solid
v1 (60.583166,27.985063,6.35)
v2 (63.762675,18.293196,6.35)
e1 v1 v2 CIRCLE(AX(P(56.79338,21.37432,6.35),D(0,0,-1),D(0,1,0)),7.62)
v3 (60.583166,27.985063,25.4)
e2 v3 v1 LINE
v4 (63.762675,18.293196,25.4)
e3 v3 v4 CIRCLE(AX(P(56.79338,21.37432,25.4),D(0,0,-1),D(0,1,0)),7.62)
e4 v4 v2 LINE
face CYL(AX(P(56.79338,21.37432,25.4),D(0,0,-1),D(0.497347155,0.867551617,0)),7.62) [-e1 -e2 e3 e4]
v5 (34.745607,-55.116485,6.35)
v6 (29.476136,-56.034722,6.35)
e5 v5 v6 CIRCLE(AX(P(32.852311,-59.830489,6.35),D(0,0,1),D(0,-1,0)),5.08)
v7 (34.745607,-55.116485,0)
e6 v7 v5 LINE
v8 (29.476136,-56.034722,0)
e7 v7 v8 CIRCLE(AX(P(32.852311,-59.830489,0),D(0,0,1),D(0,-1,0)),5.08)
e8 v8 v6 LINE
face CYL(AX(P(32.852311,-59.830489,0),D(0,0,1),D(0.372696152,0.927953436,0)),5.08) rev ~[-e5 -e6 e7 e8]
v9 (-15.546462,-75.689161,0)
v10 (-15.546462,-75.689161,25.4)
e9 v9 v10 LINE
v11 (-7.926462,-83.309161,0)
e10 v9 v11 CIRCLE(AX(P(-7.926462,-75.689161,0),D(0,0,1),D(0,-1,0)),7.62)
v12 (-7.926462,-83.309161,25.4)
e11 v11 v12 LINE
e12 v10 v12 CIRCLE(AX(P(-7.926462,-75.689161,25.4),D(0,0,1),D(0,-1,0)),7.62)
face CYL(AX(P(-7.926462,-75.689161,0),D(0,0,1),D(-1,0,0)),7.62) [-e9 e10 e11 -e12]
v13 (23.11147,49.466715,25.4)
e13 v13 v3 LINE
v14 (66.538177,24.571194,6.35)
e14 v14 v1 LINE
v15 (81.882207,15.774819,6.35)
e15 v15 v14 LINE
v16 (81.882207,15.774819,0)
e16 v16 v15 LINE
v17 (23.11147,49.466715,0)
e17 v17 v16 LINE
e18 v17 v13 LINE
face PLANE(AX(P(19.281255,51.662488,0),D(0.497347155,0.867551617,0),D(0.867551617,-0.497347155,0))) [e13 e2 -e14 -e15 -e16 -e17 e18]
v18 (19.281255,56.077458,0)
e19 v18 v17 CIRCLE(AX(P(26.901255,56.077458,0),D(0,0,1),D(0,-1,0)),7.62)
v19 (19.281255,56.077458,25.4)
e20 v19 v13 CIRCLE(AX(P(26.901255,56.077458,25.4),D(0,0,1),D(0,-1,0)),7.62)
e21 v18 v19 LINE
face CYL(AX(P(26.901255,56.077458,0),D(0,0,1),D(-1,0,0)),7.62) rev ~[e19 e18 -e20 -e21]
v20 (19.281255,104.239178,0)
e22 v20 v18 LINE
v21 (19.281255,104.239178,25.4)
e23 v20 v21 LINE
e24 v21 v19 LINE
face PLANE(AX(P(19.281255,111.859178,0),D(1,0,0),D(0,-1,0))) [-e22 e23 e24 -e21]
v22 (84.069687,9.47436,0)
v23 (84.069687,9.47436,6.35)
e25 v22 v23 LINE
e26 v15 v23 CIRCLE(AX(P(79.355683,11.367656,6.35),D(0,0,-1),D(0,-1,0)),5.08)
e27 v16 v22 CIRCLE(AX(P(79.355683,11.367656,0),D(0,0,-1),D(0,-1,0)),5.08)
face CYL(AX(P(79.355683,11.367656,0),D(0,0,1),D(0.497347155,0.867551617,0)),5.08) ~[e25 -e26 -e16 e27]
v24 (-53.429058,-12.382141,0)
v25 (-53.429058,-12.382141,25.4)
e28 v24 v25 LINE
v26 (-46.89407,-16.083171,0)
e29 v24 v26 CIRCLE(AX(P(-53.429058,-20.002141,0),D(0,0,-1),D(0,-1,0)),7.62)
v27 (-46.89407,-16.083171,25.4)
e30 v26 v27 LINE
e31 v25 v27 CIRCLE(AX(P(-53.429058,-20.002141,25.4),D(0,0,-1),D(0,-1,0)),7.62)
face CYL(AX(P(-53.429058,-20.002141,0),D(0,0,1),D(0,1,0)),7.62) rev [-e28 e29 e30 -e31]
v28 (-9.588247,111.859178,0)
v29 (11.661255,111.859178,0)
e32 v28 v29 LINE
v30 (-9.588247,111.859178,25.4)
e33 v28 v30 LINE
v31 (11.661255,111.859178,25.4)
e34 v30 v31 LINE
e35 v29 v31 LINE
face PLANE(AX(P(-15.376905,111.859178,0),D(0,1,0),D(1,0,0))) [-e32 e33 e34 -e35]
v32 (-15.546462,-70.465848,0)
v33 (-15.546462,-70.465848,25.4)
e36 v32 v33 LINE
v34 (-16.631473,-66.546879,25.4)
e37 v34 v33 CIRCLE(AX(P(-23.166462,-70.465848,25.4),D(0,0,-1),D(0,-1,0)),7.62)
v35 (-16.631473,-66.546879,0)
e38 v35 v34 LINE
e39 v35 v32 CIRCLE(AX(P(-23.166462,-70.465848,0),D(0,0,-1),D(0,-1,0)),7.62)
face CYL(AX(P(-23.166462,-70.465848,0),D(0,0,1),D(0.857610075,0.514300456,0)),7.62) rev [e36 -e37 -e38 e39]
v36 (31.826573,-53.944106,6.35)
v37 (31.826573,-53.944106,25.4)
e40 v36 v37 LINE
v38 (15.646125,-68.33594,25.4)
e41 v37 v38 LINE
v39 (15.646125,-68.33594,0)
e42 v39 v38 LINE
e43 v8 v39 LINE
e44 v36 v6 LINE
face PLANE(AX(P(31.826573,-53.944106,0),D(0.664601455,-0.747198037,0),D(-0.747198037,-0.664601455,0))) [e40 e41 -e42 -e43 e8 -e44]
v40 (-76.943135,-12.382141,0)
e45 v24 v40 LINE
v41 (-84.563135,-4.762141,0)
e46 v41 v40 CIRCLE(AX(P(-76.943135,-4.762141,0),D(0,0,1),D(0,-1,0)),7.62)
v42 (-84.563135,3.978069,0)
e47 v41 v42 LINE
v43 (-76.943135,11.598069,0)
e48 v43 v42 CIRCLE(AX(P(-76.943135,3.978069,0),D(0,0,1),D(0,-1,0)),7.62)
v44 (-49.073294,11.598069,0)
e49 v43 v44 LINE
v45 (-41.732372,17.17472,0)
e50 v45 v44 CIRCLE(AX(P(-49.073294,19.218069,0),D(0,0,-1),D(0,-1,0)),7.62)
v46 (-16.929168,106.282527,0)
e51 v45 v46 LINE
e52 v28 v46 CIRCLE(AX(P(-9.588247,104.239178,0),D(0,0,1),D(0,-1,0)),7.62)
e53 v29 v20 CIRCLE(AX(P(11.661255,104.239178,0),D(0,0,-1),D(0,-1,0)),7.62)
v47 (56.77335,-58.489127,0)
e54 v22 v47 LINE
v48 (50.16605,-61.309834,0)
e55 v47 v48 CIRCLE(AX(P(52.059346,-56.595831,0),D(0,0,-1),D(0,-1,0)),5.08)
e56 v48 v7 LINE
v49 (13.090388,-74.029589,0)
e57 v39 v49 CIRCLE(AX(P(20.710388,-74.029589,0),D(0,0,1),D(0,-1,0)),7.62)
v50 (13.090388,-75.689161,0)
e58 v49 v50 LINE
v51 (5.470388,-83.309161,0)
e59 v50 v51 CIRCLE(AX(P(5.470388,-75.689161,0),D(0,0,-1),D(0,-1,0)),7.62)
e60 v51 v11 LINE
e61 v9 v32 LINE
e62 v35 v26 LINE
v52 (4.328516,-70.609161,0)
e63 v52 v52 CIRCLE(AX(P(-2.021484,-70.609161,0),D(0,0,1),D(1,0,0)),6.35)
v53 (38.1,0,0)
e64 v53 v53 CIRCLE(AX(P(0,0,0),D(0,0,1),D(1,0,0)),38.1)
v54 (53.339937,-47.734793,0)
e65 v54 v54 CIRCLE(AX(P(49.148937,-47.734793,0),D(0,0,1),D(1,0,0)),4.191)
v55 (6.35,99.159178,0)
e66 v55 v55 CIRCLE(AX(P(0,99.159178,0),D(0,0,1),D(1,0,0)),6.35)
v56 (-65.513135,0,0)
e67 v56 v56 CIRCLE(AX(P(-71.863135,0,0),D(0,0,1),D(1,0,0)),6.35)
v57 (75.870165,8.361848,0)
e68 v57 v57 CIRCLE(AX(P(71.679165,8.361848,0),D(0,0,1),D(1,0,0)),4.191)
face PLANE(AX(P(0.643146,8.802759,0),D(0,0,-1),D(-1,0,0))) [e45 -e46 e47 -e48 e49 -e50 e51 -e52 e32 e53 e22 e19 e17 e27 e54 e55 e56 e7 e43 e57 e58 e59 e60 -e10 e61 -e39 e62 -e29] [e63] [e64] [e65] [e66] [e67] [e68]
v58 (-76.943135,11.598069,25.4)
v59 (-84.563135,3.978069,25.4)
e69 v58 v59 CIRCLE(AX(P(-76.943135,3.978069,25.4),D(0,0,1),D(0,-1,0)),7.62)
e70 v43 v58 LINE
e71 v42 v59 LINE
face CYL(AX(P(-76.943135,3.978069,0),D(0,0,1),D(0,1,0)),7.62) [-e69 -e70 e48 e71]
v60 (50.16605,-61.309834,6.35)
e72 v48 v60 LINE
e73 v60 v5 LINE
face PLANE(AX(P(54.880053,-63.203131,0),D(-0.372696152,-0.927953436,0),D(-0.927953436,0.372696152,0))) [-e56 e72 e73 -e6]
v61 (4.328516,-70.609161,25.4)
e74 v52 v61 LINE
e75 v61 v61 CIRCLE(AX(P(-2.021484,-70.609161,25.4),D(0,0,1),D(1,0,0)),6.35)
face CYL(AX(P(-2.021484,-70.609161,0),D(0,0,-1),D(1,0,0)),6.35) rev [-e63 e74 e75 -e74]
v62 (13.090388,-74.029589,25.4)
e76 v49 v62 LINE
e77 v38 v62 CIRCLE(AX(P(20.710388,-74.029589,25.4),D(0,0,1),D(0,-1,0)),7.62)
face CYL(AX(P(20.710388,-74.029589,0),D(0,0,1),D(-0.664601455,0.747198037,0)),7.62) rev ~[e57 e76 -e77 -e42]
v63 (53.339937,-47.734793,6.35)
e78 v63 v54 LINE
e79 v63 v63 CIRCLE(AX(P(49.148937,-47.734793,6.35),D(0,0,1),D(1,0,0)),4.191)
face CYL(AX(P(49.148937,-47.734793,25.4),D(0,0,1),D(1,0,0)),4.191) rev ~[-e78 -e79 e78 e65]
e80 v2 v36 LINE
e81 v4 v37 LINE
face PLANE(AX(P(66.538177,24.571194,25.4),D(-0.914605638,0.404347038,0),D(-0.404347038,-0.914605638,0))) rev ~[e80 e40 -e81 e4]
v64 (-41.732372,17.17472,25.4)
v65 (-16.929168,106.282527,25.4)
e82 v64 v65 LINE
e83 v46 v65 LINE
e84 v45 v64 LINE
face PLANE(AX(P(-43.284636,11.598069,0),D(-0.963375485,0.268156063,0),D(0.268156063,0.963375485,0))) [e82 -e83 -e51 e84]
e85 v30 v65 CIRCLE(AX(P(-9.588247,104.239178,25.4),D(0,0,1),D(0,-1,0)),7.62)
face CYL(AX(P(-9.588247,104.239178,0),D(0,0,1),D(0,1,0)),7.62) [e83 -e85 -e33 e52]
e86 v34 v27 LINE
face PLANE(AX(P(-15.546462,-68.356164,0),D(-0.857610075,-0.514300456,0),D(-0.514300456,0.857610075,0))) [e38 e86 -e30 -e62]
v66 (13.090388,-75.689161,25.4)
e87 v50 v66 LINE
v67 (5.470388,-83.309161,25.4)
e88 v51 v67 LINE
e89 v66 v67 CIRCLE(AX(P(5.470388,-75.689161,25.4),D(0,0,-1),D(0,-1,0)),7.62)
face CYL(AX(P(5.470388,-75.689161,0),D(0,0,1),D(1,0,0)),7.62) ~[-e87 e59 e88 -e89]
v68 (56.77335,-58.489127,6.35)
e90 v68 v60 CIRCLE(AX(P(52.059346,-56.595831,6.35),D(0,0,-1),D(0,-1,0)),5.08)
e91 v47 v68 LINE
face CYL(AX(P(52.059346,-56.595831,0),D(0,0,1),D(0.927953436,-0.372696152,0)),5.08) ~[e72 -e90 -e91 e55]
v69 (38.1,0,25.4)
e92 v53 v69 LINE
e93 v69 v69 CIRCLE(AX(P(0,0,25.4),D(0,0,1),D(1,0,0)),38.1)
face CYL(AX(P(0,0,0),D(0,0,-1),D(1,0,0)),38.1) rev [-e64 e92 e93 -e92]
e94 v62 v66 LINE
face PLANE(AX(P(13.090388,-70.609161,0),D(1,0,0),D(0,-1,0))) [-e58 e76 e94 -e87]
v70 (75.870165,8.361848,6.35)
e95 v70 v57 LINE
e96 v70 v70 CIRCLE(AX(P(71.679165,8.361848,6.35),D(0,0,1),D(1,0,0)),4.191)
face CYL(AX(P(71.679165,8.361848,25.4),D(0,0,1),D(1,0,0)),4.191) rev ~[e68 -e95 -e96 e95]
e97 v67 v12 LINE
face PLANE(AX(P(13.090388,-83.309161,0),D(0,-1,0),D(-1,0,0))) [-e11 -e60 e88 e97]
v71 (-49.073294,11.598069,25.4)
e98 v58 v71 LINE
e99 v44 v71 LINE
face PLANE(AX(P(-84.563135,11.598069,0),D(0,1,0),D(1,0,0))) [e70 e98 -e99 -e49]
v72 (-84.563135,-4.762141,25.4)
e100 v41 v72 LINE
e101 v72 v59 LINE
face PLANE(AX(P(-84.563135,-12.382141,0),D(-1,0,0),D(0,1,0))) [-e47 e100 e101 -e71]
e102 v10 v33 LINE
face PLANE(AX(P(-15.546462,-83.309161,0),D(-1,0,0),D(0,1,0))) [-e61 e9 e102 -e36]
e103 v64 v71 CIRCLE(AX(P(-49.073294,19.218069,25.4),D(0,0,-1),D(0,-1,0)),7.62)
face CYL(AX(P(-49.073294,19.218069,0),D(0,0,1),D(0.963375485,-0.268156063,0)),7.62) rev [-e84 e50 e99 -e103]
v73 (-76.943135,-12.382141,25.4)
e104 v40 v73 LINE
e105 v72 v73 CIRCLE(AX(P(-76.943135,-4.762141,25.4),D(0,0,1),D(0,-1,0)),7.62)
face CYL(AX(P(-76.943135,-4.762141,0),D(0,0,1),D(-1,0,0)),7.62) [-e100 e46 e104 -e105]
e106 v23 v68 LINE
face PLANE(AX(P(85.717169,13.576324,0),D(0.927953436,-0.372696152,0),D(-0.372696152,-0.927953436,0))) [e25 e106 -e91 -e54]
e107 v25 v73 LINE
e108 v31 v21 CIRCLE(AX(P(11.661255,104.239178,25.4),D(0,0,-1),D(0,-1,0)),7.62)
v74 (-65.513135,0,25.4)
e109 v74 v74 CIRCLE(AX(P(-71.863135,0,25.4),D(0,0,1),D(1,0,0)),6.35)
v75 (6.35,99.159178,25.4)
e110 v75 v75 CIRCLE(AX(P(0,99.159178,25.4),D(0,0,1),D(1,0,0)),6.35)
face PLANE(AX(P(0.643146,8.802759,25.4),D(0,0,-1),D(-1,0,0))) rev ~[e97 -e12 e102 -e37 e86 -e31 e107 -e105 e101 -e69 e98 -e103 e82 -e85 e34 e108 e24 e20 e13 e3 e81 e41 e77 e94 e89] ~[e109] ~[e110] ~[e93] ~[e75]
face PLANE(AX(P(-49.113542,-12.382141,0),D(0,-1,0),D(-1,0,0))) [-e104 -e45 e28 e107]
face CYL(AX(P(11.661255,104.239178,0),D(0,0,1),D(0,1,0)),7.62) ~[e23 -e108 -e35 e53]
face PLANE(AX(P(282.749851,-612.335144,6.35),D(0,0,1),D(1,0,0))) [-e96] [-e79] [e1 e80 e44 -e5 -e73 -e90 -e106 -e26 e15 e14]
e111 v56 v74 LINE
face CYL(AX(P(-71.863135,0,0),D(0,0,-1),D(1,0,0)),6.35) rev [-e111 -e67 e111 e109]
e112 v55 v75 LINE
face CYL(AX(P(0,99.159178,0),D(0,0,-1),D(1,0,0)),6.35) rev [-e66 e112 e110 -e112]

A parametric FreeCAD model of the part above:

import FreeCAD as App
import Part
import Sketcher
Q = App.Units.Quantity


def edges_at(feature, points):
    """Names of the edges that pass closest to the given points."""
    edges = feature.Shape.Edges
    near = lambda p: min(range(len(edges)), key=lambda i: edges[i].distToShape(Part.Vertex(*p))[0])
    return sorted({f"Edge{near(p) + 1}" for p in points})

doc = App.newDocument("Part")
body = doc.addObject("PartDesign::Body", "Body")

# Sketch on XY plane
sketch1 = body.newObject("Sketcher::SketchObject", "Sketch")
sketch1.AttachmentSupport = (doc.getObject("XY_Plane"), [""])
sketch1.MapMode = "FlatFace"
sketch1.addGeometry([
    Part.LineSegment(App.Vector(19, 112, 0), App.Vector(-15, 112, 0)),  # 0
    Part.LineSegment(App.Vector(-15, 112, 0), App.Vector(-43, 12, 0)),  # 1
    Part.LineSegment(App.Vector(-43, 12, 0), App.Vector(-85, 12, 0)),  # 2
    Part.LineSegment(App.Vector(-85, 12, 0), App.Vector(-85, -12, 0)),  # 3
    Part.LineSegment(App.Vector(-85, -12, 0), App.Vector(-49, -12, 0)),  # 4
    Part.LineSegment(App.Vector(-49, -12, 0), App.Vector(-16, -68, 0)),  # 5
    Part.LineSegment(App.Vector(-16, -68, 0), App.Vector(-16, -83, 0)),  # 6
    Part.LineSegment(App.Vector(-16, -83, 0), App.Vector(13, -83, 0)),  # 7
    Part.LineSegment(App.Vector(13, -83, 0), App.Vector(13, -71, 0)),  # 8
    Part.LineSegment(App.Vector(13, -71, 0), App.Vector(32, -54, 0)),  # 9
    Part.LineSegment(App.Vector(32, -54, 0), App.Vector(55, -63, 0)),  # 10
    Part.LineSegment(App.Vector(55, -63, 0), App.Vector(86, 14, 0)),  # 11
    Part.LineSegment(App.Vector(86, 14, 0), App.Vector(19, 52, 0)),  # 12
    Part.LineSegment(App.Vector(19, 52, 0), App.Vector(19, 112, 0)),  # 13
    Part.Circle(App.Vector(-2, -71, 0), App.Vector(0, 0, 1), 6),  # 14
    Part.Circle(App.Vector(0, 0, 0), App.Vector(0, 0, 1), 38),  # 15
    Part.Circle(App.Vector(-72, 0, 0), App.Vector(0, 0, 1), 6),  # 16
    Part.Circle(App.Vector(0, 99, 0), App.Vector(0, 0, 1), 6),  # 17
], False)
sketch1.addConstraint([
    Sketcher.Constraint("Coincident", 0, 2, 1, 1),
    Sketcher.Constraint("Coincident", 1, 2, 2, 1),
    Sketcher.Constraint("Coincident", 2, 2, 3, 1),
    Sketcher.Constraint("Coincident", 3, 2, 4, 1),
    Sketcher.Constraint("Coincident", 4, 2, 5, 1),
    Sketcher.Constraint("Coincident", 5, 2, 6, 1),
    Sketcher.Constraint("Coincident", 6, 2, 7, 1),
    Sketcher.Constraint("Coincident", 7, 2, 8, 1),
    Sketcher.Constraint("Coincident", 8, 2, 9, 1),
    Sketcher.Constraint("Coincident", 9, 2, 10, 1),
    Sketcher.Constraint("Coincident", 10, 2, 11, 1),
    Sketcher.Constraint("Coincident", 11, 2, 12, 1),
    Sketcher.Constraint("Coincident", 12, 2, 13, 1),
    Sketcher.Constraint("Coincident", 13, 2, 0, 1),
    Sketcher.Constraint("Horizontal", 0),
    Sketcher.Constraint("Horizontal", 2),
    Sketcher.Constraint("Vertical", 3),
    Sketcher.Constraint("Horizontal", 4),
    Sketcher.Constraint("Vertical", 6),
    Sketcher.Constraint("Horizontal", 7),
    Sketcher.Constraint("Vertical", 8),
    Sketcher.Constraint("Vertical", 13),
    Sketcher.Constraint("Coincident", 15, 3, -1, 1),
    Sketcher.Constraint("Equal", 14, 16),
    Sketcher.Constraint("Equal", 16, 17),
    Sketcher.Constraint("PointOnObject", 16, 3, -1),
    Sketcher.Constraint("PointOnObject", 17, 3, -2),
    Sketcher.Constraint("Perpendicular", 10, 11),
    Sketcher.Constraint("Horizontal", 14, 3, 8, 2),
    Sketcher.Constraint("Diameter", 15, Q("3 in")),
    Sketcher.Constraint("Diameter", 14, Q("0.5 in")),
    Sketcher.Constraint("DistanceY", 8, 1, 8, 2, Q("0.5 in")),
    Sketcher.Constraint("DistanceY", 17, 3, 0, 2, Q("0.5 in")),
    Sketcher.Constraint("DistanceX", 2, 2, 16, 3, Q("0.5 in")),
    Sketcher.Constraint("DistanceX", 2, 2, 2, 1, 41.278499),
    Sketcher.Constraint("DistanceX", 0, 2, 0, 1, 34.65816),
    Sketcher.Constraint("DistanceX", 7, 1, 7, 2, 28.636849),
    Sketcher.Constraint("DistanceY", 3, 2, 3, 1, 23.98021),
    Sketcher.Constraint("DistanceY", 13, 1, 13, 2, 60.19669),
    Sketcher.Constraint("Distance", 1, 104.072722),
    Sketcher.Constraint("Distance", 5, 65.267451),
    Sketcher.Constraint("Distance", 9, 25.075261),
    Sketcher.Constraint("Distance", 10, 24.843359),
    Sketcher.Constraint("Distance", 12, 76.578629),
    Sketcher.Constraint("DistanceX", 4, 1, 4, 2, 35.449594),
    Sketcher.Constraint("DistanceY", 6, 2, 6, 1, 14.952997),
    Sketcher.Constraint("DistanceY", 14, 3, -1, 1, 70.609161),
    Sketcher.Constraint("DistanceY", -1, 1, 1, 2, 11.598069),
    Sketcher.Constraint("DistanceX", 4, 2, -1, 1, 49.113542),
    Sketcher.Constraint("DistanceY", 10, 2, -1, 1, 63.203131),
    Sketcher.Constraint("DistanceX", -1, 1, 11, 2, 85.717169),
    Sketcher.Constraint("DistanceX", 16, 3, 14, 3, 69.841652),
    Sketcher.Constraint("DistanceY", 14, 3, 17, 3, 169.768339),
])
pad1 = body.newObject("PartDesign::Pad", "Pad")
pad1.Profile = sketch1
pad1.Length = Q("1 in")

# Sketch on XY plane
sketch2 = body.newObject("Sketcher::SketchObject", "Sketch001")
sketch2.AttachmentSupport = (doc.getObject("XY_Plane"), [""])
sketch2.MapMode = "FlatFace"
sketch2.AttachmentOffset = App.Placement(App.Vector(0, 0, 1 * 25.4), App.Rotation())
sketch2.addGeometry([
    Part.LineSegment(App.Vector(446, -193, 0), App.Vector(86, 14, 0)),  # 0
    Part.LineSegment(App.Vector(86, 14, 0), App.Vector(67, 25, 0)),  # 1
    Part.LineSegment(App.Vector(67, 25, 0), App.Vector(32, -54, 0)),  # 2
    Part.LineSegment(App.Vector(32, -54, 0), App.Vector(-136, -434, 0)),  # 3
    Part.LineSegment(App.Vector(-136, -434, 0), App.Vector(181, -1201, 0)),  # 4
    Part.LineSegment(App.Vector(181, -1201, 0), App.Vector(763, -960, 0)),  # 5
    Part.LineSegment(App.Vector(763, -960, 0), App.Vector(446, -193, 0)),  # 6
], False)
sketch2.addConstraint([
    Sketcher.Constraint("Coincident", 0, 2, 1, 1),
    Sketcher.Constraint("Coincident", 1, 2, 2, 1),
    Sketcher.Constraint("Coincident", 2, 2, 3, 1),
    Sketcher.Constraint("Coincident", 3, 2, 4, 1),
    Sketcher.Constraint("Coincident", 4, 2, 5, 1),
    Sketcher.Constraint("Coincident", 5, 2, 6, 1),
    Sketcher.Constraint("Coincident", 6, 2, 0, 1),
    Sketcher.Constraint("Parallel", 0, 1),
    Sketcher.Constraint("Parallel", 2, 3),
    Sketcher.Constraint("Perpendicular", 4, 5),
    Sketcher.Constraint("Perpendicular", 5, 6),
    Sketcher.Constraint("Equal", 0, 3),
    Sketcher.Constraint("Equal", 4, 6),
    Sketcher.Constraint("DistanceY", 2, 2, 1, 2, 78.5153),
    Sketcher.Constraint("DistanceX", 3, 2, 1, 2, 202.5776),
    Sketcher.Constraint("DistanceY", 6, 2, 0, 2, 206.475298),
    Sketcher.Constraint("Distance", 0, 415.153271),
    Sketcher.Constraint("Distance", 1, 22.107032),
    Sketcher.Constraint("Distance", 4, 830.306542),
    Sketcher.Constraint("DistanceX", -1, 1, 0, 2, 85.717169),
    Sketcher.Constraint("DistanceY", 3, 2, -1, 1, 433.645629),
])
pocket1 = body.newObject("PartDesign::Pocket", "Pocket")
pocket1.Profile = sketch2
pocket1.Length = Q("0.75 in")

# Sketch on XY plane
sketch3 = body.newObject("Sketcher::SketchObject", "Sketch002")
sketch3.AttachmentSupport = (doc.getObject("XY_Plane"), [""])
sketch3.MapMode = "FlatFace"
sketch3.AttachmentOffset = App.Placement(App.Vector(0, 0, 1 * 25.4), App.Rotation())
sketch3.addGeometry([
    Part.Circle(App.Vector(71.7, 8.4, 0), App.Vector(0, 0, 1), 4.2),
    Part.Circle(App.Vector(49.1, -47.7, 0), App.Vector(0, 0, 1), 4.2),
], False)
sketch3.addConstraint([
    Sketcher.Constraint("Equal", 0, 1),
    Sketcher.Constraint("Diameter", 0, Q("0.33 in")),
    Sketcher.Constraint("DistanceY", -1, 1, 0, 3, 8.361848),
    Sketcher.Constraint("DistanceY", 1, 3, 0, 3, 56.096641),
    Sketcher.Constraint("DistanceX", -1, 1, 0, 3, 71.679165),
    Sketcher.Constraint("DistanceX", -1, 1, 1, 3, 49.148937),
])
pocket2 = body.newObject("PartDesign::Pocket", "Pocket001")
pocket2.Profile = sketch3
pocket2.Type = "ThroughAll"
doc.recompute()

fillet = body.newObject("PartDesign::Fillet", "Fillet")
fillet.Base = (pocket2, edges_at(pocket2, [
    (13.09, -70.609, 12.7),
    (13.09, -83.309, 12.7),
    (-15.546, -83.309, 12.7),
    (-15.546, -68.356, 12.7),
    (-49.114, -12.382, 12.7),
    (-84.563, -12.382, 12.7),
    (-84.563, 11.598, 12.7),
    (-43.285, 11.598, 12.7),
    (-15.377, 111.859, 12.7),
    (19.281, 111.859, 12.7),
    (19.281, 51.662, 12.7),
    (66.538, 24.571, 15.875),
]))
fillet.Radius = Q("0.3 in")
doc.recompute()

fillet2 = body.newObject("PartDesign::Fillet", "Fillet001")
fillet2.Base = (fillet, edges_at(fillet, [(85.717, 13.576, 3.175), (54.88, -63.203, 3.175), (31.827, -53.944, 3.175)]))
fillet2.Radius = Q("0.2 in")

doc.recompute()
